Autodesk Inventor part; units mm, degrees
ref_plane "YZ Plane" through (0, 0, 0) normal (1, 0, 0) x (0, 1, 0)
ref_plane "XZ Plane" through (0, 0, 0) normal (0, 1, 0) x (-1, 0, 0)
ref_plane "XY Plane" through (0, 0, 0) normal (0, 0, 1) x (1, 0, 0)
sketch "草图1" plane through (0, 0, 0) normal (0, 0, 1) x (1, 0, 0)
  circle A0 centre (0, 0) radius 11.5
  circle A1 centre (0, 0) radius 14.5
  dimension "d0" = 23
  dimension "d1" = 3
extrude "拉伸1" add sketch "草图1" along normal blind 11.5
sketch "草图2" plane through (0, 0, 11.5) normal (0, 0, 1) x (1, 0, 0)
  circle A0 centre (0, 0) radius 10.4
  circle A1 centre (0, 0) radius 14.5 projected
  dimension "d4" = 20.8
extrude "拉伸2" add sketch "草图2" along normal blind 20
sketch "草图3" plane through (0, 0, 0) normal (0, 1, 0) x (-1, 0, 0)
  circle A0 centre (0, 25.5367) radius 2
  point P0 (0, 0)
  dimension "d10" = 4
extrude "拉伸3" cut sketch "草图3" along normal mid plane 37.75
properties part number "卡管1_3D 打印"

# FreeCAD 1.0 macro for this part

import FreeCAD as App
import Part
import Sketcher

doc = App.newDocument("Part")
body = doc.addObject("PartDesign::Body", "Body")

# Sketch on XY plane
sketch1 = doc.addObject("Sketcher::SketchObject", "Sketch")
body.addObject(sketch1)
sketch1.AttachmentSupport = (doc.XY_Plane, [""])
sketch1.MapMode = "FlatFace"
sketch1.addGeometry([
    Part.Circle(App.Vector(0, 0, 0), App.Vector(0, 0, 1), 14),
    Part.Circle(App.Vector(0, 0, 0), App.Vector(0, 0, 1), 12),
], False)
sketch1.addConstraint([
    Sketcher.Constraint("Coincident", 0, 3, -1, 1),
    Sketcher.Constraint("Coincident", 1, 3, -1, 1),
    Sketcher.Constraint("Diameter", 1, 23.0),
    Sketcher.Constraint("Diameter", 0, 29.0),
])
pad1 = doc.addObject("PartDesign::Pad", "Pad")
body.addObject(pad1)
pad1.Profile = sketch1
pad1.Length = 11.5

# Sketch on XY plane
sketch2 = doc.addObject("Sketcher::SketchObject", "Sketch001")
body.addObject(sketch2)
sketch2.AttachmentSupport = (doc.XY_Plane, [""])
sketch2.MapMode = "FlatFace"
sketch2.AttachmentOffset = App.Placement(App.Vector(0, 0, 11.5), App.Rotation())
sketch2.addGeometry([
    Part.Circle(App.Vector(0, 0, 0), App.Vector(0, 0, 1), 14),
    Part.Circle(App.Vector(0, 0, 0), App.Vector(0, 0, 1), 10),
], False)
sketch2.addConstraint([
    Sketcher.Constraint("Coincident", 0, 3, -1, 1),
    Sketcher.Constraint("Coincident", 1, 3, -1, 1),
    Sketcher.Constraint("Diameter", 1, 20.8),
    Sketcher.Constraint("Diameter", 0, 29.0),
])
pad2 = doc.addObject("PartDesign::Pad", "Pad001")
body.addObject(pad2)
pad2.Profile = sketch2
pad2.Length = 20

# Sketch on XZ plane
sketch3 = doc.addObject("Sketcher::SketchObject", "Sketch002")
body.addObject(sketch3)
sketch3.AttachmentSupport = (doc.XZ_Plane, [""])
sketch3.MapMode = "FlatFace"
sketch3.addGeometry(Part.Circle(App.Vector(0, 25.5, 0), App.Vector(0, 0, 1), 2), False)
sketch3.addConstraint([
    Sketcher.Constraint("PointOnObject", 0, 3, -2),
    Sketcher.Constraint("Diameter", 0, 4.0),
    Sketcher.Constraint("DistanceY", -1, 1, 0, 3, 25.5367),
])
pocket1 = doc.addObject("PartDesign::Pocket", "Pocket")
body.addObject(pocket1)
pocket1.Profile = sketch3
pocket1.Length = 37.75
pocket1.Midplane = True

doc.recompute()
